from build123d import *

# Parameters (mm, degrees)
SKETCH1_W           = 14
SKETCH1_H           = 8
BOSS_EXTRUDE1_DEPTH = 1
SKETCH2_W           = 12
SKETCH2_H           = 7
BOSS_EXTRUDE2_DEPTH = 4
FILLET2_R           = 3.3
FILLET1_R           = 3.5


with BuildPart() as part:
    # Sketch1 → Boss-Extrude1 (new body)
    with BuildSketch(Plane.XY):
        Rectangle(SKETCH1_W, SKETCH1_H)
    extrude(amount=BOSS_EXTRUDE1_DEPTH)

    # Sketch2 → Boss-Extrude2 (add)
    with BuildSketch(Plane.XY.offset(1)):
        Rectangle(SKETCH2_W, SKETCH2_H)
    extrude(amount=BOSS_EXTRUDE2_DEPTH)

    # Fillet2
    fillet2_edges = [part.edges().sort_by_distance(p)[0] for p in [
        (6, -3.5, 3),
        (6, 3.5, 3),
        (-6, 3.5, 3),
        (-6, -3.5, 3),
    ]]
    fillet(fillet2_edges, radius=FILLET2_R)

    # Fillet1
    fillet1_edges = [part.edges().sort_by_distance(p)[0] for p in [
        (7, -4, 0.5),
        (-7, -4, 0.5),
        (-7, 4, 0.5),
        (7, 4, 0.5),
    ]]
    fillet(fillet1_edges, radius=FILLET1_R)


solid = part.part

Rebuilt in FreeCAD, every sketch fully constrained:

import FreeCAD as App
import Part
import Sketcher
from FreeCAD import Vector


def edges_at(feature, points):
    """Names of the edges that pass closest to the given points."""
    edges = feature.Shape.Edges
    near = lambda p: min(range(len(edges)), key=lambda i: edges[i].distToShape(Part.Vertex(*p))[0])
    return sorted({f"Edge{near(p) + 1}" for p in points})


def add_polygon(sketch, points):
    """Adds a closed chain of lines whose ends are joined by coincident constraints."""
    first, n = sketch.GeometryCount, len(points)
    for a, b in zip(points, points[1:] + points[:1]):
        sketch.addGeometry(Part.LineSegment(App.Vector(*a, 0), App.Vector(*b, 0)), False)
    for i in range(n):
        sketch.addConstraint(Sketcher.Constraint("Coincident", first + i, 2, first + (i + 1) % n, 1))

doc = App.newDocument("Part")
body = doc.addObject("PartDesign::Body", "Body")

sketch1 = body.newObject("Sketcher::SketchObject", "Sketch")
sketch1.AttachmentSupport = (doc.getObject("XY_Plane"), [""])
sketch1.MapMode = "FlatFace"
add_polygon(sketch1, [(-7, 4), (-7, -4), (7, -4), (7, 4)])
sketch1.addConstraint([
    Sketcher.Constraint("Vertical", 0),
    Sketcher.Constraint("Horizontal", 1),
    Sketcher.Constraint("Vertical", 2),
    Sketcher.Constraint("Horizontal", 3),
    Sketcher.Constraint("Symmetric", 0, 2, 2, 2, -1, 1),
    Sketcher.Constraint("DistanceX", 1, 1, 1, 2, 14.0),
    Sketcher.Constraint("DistanceY", 0, 2, 0, 1, 8.0),
])
pad1 = body.newObject("PartDesign::Pad", "Pad")
pad1.Profile = sketch1
pad1.Length = 1

sketch2 = body.newObject("Sketcher::SketchObject", "Sketch001")
sketch2.AttachmentSupport = (doc.getObject("XY_Plane"), [""])
sketch2.MapMode = "FlatFace"
sketch2.AttachmentOffset = App.Placement(Vector(0, 0, 1), App.Rotation())
add_polygon(sketch2, [(-6, 4), (-6, -4), (6, -4), (6, 4)])
sketch2.addConstraint([
    Sketcher.Constraint("Vertical", 0),
    Sketcher.Constraint("Horizontal", 1),
    Sketcher.Constraint("Vertical", 2),
    Sketcher.Constraint("Horizontal", 3),
    Sketcher.Constraint("Symmetric", 0, 2, 2, 2, -1, 1),
    Sketcher.Constraint("DistanceX", 1, 1, 1, 2, 12.0),
    Sketcher.Constraint("DistanceY", 0, 2, 0, 1, 7.0),
])
pad2 = body.newObject("PartDesign::Pad", "Pad001")
pad2.Profile = sketch2
pad2.Length = 4
doc.recompute()

fillet = body.newObject("PartDesign::Fillet", "Fillet")
fillet.Base = (pad2, edges_at(pad2, [
    (6, -3.5, 3),
    (6, 3.5, 3),
    (-6, 3.5, 3),
    (-6, -3.5, 3),
]))
fillet.Radius = 3.3
doc.recompute()

fillet2 = body.newObject("PartDesign::Fillet", "Fillet001")
fillet2.Base = (fillet, edges_at(fillet, [
    (7, -4, 0.5),
    (-7, -4, 0.5),
    (-7, 4, 0.5),
    (7, 4, 0.5),
]))
fillet2.Radius = 3.5

doc.recompute()
